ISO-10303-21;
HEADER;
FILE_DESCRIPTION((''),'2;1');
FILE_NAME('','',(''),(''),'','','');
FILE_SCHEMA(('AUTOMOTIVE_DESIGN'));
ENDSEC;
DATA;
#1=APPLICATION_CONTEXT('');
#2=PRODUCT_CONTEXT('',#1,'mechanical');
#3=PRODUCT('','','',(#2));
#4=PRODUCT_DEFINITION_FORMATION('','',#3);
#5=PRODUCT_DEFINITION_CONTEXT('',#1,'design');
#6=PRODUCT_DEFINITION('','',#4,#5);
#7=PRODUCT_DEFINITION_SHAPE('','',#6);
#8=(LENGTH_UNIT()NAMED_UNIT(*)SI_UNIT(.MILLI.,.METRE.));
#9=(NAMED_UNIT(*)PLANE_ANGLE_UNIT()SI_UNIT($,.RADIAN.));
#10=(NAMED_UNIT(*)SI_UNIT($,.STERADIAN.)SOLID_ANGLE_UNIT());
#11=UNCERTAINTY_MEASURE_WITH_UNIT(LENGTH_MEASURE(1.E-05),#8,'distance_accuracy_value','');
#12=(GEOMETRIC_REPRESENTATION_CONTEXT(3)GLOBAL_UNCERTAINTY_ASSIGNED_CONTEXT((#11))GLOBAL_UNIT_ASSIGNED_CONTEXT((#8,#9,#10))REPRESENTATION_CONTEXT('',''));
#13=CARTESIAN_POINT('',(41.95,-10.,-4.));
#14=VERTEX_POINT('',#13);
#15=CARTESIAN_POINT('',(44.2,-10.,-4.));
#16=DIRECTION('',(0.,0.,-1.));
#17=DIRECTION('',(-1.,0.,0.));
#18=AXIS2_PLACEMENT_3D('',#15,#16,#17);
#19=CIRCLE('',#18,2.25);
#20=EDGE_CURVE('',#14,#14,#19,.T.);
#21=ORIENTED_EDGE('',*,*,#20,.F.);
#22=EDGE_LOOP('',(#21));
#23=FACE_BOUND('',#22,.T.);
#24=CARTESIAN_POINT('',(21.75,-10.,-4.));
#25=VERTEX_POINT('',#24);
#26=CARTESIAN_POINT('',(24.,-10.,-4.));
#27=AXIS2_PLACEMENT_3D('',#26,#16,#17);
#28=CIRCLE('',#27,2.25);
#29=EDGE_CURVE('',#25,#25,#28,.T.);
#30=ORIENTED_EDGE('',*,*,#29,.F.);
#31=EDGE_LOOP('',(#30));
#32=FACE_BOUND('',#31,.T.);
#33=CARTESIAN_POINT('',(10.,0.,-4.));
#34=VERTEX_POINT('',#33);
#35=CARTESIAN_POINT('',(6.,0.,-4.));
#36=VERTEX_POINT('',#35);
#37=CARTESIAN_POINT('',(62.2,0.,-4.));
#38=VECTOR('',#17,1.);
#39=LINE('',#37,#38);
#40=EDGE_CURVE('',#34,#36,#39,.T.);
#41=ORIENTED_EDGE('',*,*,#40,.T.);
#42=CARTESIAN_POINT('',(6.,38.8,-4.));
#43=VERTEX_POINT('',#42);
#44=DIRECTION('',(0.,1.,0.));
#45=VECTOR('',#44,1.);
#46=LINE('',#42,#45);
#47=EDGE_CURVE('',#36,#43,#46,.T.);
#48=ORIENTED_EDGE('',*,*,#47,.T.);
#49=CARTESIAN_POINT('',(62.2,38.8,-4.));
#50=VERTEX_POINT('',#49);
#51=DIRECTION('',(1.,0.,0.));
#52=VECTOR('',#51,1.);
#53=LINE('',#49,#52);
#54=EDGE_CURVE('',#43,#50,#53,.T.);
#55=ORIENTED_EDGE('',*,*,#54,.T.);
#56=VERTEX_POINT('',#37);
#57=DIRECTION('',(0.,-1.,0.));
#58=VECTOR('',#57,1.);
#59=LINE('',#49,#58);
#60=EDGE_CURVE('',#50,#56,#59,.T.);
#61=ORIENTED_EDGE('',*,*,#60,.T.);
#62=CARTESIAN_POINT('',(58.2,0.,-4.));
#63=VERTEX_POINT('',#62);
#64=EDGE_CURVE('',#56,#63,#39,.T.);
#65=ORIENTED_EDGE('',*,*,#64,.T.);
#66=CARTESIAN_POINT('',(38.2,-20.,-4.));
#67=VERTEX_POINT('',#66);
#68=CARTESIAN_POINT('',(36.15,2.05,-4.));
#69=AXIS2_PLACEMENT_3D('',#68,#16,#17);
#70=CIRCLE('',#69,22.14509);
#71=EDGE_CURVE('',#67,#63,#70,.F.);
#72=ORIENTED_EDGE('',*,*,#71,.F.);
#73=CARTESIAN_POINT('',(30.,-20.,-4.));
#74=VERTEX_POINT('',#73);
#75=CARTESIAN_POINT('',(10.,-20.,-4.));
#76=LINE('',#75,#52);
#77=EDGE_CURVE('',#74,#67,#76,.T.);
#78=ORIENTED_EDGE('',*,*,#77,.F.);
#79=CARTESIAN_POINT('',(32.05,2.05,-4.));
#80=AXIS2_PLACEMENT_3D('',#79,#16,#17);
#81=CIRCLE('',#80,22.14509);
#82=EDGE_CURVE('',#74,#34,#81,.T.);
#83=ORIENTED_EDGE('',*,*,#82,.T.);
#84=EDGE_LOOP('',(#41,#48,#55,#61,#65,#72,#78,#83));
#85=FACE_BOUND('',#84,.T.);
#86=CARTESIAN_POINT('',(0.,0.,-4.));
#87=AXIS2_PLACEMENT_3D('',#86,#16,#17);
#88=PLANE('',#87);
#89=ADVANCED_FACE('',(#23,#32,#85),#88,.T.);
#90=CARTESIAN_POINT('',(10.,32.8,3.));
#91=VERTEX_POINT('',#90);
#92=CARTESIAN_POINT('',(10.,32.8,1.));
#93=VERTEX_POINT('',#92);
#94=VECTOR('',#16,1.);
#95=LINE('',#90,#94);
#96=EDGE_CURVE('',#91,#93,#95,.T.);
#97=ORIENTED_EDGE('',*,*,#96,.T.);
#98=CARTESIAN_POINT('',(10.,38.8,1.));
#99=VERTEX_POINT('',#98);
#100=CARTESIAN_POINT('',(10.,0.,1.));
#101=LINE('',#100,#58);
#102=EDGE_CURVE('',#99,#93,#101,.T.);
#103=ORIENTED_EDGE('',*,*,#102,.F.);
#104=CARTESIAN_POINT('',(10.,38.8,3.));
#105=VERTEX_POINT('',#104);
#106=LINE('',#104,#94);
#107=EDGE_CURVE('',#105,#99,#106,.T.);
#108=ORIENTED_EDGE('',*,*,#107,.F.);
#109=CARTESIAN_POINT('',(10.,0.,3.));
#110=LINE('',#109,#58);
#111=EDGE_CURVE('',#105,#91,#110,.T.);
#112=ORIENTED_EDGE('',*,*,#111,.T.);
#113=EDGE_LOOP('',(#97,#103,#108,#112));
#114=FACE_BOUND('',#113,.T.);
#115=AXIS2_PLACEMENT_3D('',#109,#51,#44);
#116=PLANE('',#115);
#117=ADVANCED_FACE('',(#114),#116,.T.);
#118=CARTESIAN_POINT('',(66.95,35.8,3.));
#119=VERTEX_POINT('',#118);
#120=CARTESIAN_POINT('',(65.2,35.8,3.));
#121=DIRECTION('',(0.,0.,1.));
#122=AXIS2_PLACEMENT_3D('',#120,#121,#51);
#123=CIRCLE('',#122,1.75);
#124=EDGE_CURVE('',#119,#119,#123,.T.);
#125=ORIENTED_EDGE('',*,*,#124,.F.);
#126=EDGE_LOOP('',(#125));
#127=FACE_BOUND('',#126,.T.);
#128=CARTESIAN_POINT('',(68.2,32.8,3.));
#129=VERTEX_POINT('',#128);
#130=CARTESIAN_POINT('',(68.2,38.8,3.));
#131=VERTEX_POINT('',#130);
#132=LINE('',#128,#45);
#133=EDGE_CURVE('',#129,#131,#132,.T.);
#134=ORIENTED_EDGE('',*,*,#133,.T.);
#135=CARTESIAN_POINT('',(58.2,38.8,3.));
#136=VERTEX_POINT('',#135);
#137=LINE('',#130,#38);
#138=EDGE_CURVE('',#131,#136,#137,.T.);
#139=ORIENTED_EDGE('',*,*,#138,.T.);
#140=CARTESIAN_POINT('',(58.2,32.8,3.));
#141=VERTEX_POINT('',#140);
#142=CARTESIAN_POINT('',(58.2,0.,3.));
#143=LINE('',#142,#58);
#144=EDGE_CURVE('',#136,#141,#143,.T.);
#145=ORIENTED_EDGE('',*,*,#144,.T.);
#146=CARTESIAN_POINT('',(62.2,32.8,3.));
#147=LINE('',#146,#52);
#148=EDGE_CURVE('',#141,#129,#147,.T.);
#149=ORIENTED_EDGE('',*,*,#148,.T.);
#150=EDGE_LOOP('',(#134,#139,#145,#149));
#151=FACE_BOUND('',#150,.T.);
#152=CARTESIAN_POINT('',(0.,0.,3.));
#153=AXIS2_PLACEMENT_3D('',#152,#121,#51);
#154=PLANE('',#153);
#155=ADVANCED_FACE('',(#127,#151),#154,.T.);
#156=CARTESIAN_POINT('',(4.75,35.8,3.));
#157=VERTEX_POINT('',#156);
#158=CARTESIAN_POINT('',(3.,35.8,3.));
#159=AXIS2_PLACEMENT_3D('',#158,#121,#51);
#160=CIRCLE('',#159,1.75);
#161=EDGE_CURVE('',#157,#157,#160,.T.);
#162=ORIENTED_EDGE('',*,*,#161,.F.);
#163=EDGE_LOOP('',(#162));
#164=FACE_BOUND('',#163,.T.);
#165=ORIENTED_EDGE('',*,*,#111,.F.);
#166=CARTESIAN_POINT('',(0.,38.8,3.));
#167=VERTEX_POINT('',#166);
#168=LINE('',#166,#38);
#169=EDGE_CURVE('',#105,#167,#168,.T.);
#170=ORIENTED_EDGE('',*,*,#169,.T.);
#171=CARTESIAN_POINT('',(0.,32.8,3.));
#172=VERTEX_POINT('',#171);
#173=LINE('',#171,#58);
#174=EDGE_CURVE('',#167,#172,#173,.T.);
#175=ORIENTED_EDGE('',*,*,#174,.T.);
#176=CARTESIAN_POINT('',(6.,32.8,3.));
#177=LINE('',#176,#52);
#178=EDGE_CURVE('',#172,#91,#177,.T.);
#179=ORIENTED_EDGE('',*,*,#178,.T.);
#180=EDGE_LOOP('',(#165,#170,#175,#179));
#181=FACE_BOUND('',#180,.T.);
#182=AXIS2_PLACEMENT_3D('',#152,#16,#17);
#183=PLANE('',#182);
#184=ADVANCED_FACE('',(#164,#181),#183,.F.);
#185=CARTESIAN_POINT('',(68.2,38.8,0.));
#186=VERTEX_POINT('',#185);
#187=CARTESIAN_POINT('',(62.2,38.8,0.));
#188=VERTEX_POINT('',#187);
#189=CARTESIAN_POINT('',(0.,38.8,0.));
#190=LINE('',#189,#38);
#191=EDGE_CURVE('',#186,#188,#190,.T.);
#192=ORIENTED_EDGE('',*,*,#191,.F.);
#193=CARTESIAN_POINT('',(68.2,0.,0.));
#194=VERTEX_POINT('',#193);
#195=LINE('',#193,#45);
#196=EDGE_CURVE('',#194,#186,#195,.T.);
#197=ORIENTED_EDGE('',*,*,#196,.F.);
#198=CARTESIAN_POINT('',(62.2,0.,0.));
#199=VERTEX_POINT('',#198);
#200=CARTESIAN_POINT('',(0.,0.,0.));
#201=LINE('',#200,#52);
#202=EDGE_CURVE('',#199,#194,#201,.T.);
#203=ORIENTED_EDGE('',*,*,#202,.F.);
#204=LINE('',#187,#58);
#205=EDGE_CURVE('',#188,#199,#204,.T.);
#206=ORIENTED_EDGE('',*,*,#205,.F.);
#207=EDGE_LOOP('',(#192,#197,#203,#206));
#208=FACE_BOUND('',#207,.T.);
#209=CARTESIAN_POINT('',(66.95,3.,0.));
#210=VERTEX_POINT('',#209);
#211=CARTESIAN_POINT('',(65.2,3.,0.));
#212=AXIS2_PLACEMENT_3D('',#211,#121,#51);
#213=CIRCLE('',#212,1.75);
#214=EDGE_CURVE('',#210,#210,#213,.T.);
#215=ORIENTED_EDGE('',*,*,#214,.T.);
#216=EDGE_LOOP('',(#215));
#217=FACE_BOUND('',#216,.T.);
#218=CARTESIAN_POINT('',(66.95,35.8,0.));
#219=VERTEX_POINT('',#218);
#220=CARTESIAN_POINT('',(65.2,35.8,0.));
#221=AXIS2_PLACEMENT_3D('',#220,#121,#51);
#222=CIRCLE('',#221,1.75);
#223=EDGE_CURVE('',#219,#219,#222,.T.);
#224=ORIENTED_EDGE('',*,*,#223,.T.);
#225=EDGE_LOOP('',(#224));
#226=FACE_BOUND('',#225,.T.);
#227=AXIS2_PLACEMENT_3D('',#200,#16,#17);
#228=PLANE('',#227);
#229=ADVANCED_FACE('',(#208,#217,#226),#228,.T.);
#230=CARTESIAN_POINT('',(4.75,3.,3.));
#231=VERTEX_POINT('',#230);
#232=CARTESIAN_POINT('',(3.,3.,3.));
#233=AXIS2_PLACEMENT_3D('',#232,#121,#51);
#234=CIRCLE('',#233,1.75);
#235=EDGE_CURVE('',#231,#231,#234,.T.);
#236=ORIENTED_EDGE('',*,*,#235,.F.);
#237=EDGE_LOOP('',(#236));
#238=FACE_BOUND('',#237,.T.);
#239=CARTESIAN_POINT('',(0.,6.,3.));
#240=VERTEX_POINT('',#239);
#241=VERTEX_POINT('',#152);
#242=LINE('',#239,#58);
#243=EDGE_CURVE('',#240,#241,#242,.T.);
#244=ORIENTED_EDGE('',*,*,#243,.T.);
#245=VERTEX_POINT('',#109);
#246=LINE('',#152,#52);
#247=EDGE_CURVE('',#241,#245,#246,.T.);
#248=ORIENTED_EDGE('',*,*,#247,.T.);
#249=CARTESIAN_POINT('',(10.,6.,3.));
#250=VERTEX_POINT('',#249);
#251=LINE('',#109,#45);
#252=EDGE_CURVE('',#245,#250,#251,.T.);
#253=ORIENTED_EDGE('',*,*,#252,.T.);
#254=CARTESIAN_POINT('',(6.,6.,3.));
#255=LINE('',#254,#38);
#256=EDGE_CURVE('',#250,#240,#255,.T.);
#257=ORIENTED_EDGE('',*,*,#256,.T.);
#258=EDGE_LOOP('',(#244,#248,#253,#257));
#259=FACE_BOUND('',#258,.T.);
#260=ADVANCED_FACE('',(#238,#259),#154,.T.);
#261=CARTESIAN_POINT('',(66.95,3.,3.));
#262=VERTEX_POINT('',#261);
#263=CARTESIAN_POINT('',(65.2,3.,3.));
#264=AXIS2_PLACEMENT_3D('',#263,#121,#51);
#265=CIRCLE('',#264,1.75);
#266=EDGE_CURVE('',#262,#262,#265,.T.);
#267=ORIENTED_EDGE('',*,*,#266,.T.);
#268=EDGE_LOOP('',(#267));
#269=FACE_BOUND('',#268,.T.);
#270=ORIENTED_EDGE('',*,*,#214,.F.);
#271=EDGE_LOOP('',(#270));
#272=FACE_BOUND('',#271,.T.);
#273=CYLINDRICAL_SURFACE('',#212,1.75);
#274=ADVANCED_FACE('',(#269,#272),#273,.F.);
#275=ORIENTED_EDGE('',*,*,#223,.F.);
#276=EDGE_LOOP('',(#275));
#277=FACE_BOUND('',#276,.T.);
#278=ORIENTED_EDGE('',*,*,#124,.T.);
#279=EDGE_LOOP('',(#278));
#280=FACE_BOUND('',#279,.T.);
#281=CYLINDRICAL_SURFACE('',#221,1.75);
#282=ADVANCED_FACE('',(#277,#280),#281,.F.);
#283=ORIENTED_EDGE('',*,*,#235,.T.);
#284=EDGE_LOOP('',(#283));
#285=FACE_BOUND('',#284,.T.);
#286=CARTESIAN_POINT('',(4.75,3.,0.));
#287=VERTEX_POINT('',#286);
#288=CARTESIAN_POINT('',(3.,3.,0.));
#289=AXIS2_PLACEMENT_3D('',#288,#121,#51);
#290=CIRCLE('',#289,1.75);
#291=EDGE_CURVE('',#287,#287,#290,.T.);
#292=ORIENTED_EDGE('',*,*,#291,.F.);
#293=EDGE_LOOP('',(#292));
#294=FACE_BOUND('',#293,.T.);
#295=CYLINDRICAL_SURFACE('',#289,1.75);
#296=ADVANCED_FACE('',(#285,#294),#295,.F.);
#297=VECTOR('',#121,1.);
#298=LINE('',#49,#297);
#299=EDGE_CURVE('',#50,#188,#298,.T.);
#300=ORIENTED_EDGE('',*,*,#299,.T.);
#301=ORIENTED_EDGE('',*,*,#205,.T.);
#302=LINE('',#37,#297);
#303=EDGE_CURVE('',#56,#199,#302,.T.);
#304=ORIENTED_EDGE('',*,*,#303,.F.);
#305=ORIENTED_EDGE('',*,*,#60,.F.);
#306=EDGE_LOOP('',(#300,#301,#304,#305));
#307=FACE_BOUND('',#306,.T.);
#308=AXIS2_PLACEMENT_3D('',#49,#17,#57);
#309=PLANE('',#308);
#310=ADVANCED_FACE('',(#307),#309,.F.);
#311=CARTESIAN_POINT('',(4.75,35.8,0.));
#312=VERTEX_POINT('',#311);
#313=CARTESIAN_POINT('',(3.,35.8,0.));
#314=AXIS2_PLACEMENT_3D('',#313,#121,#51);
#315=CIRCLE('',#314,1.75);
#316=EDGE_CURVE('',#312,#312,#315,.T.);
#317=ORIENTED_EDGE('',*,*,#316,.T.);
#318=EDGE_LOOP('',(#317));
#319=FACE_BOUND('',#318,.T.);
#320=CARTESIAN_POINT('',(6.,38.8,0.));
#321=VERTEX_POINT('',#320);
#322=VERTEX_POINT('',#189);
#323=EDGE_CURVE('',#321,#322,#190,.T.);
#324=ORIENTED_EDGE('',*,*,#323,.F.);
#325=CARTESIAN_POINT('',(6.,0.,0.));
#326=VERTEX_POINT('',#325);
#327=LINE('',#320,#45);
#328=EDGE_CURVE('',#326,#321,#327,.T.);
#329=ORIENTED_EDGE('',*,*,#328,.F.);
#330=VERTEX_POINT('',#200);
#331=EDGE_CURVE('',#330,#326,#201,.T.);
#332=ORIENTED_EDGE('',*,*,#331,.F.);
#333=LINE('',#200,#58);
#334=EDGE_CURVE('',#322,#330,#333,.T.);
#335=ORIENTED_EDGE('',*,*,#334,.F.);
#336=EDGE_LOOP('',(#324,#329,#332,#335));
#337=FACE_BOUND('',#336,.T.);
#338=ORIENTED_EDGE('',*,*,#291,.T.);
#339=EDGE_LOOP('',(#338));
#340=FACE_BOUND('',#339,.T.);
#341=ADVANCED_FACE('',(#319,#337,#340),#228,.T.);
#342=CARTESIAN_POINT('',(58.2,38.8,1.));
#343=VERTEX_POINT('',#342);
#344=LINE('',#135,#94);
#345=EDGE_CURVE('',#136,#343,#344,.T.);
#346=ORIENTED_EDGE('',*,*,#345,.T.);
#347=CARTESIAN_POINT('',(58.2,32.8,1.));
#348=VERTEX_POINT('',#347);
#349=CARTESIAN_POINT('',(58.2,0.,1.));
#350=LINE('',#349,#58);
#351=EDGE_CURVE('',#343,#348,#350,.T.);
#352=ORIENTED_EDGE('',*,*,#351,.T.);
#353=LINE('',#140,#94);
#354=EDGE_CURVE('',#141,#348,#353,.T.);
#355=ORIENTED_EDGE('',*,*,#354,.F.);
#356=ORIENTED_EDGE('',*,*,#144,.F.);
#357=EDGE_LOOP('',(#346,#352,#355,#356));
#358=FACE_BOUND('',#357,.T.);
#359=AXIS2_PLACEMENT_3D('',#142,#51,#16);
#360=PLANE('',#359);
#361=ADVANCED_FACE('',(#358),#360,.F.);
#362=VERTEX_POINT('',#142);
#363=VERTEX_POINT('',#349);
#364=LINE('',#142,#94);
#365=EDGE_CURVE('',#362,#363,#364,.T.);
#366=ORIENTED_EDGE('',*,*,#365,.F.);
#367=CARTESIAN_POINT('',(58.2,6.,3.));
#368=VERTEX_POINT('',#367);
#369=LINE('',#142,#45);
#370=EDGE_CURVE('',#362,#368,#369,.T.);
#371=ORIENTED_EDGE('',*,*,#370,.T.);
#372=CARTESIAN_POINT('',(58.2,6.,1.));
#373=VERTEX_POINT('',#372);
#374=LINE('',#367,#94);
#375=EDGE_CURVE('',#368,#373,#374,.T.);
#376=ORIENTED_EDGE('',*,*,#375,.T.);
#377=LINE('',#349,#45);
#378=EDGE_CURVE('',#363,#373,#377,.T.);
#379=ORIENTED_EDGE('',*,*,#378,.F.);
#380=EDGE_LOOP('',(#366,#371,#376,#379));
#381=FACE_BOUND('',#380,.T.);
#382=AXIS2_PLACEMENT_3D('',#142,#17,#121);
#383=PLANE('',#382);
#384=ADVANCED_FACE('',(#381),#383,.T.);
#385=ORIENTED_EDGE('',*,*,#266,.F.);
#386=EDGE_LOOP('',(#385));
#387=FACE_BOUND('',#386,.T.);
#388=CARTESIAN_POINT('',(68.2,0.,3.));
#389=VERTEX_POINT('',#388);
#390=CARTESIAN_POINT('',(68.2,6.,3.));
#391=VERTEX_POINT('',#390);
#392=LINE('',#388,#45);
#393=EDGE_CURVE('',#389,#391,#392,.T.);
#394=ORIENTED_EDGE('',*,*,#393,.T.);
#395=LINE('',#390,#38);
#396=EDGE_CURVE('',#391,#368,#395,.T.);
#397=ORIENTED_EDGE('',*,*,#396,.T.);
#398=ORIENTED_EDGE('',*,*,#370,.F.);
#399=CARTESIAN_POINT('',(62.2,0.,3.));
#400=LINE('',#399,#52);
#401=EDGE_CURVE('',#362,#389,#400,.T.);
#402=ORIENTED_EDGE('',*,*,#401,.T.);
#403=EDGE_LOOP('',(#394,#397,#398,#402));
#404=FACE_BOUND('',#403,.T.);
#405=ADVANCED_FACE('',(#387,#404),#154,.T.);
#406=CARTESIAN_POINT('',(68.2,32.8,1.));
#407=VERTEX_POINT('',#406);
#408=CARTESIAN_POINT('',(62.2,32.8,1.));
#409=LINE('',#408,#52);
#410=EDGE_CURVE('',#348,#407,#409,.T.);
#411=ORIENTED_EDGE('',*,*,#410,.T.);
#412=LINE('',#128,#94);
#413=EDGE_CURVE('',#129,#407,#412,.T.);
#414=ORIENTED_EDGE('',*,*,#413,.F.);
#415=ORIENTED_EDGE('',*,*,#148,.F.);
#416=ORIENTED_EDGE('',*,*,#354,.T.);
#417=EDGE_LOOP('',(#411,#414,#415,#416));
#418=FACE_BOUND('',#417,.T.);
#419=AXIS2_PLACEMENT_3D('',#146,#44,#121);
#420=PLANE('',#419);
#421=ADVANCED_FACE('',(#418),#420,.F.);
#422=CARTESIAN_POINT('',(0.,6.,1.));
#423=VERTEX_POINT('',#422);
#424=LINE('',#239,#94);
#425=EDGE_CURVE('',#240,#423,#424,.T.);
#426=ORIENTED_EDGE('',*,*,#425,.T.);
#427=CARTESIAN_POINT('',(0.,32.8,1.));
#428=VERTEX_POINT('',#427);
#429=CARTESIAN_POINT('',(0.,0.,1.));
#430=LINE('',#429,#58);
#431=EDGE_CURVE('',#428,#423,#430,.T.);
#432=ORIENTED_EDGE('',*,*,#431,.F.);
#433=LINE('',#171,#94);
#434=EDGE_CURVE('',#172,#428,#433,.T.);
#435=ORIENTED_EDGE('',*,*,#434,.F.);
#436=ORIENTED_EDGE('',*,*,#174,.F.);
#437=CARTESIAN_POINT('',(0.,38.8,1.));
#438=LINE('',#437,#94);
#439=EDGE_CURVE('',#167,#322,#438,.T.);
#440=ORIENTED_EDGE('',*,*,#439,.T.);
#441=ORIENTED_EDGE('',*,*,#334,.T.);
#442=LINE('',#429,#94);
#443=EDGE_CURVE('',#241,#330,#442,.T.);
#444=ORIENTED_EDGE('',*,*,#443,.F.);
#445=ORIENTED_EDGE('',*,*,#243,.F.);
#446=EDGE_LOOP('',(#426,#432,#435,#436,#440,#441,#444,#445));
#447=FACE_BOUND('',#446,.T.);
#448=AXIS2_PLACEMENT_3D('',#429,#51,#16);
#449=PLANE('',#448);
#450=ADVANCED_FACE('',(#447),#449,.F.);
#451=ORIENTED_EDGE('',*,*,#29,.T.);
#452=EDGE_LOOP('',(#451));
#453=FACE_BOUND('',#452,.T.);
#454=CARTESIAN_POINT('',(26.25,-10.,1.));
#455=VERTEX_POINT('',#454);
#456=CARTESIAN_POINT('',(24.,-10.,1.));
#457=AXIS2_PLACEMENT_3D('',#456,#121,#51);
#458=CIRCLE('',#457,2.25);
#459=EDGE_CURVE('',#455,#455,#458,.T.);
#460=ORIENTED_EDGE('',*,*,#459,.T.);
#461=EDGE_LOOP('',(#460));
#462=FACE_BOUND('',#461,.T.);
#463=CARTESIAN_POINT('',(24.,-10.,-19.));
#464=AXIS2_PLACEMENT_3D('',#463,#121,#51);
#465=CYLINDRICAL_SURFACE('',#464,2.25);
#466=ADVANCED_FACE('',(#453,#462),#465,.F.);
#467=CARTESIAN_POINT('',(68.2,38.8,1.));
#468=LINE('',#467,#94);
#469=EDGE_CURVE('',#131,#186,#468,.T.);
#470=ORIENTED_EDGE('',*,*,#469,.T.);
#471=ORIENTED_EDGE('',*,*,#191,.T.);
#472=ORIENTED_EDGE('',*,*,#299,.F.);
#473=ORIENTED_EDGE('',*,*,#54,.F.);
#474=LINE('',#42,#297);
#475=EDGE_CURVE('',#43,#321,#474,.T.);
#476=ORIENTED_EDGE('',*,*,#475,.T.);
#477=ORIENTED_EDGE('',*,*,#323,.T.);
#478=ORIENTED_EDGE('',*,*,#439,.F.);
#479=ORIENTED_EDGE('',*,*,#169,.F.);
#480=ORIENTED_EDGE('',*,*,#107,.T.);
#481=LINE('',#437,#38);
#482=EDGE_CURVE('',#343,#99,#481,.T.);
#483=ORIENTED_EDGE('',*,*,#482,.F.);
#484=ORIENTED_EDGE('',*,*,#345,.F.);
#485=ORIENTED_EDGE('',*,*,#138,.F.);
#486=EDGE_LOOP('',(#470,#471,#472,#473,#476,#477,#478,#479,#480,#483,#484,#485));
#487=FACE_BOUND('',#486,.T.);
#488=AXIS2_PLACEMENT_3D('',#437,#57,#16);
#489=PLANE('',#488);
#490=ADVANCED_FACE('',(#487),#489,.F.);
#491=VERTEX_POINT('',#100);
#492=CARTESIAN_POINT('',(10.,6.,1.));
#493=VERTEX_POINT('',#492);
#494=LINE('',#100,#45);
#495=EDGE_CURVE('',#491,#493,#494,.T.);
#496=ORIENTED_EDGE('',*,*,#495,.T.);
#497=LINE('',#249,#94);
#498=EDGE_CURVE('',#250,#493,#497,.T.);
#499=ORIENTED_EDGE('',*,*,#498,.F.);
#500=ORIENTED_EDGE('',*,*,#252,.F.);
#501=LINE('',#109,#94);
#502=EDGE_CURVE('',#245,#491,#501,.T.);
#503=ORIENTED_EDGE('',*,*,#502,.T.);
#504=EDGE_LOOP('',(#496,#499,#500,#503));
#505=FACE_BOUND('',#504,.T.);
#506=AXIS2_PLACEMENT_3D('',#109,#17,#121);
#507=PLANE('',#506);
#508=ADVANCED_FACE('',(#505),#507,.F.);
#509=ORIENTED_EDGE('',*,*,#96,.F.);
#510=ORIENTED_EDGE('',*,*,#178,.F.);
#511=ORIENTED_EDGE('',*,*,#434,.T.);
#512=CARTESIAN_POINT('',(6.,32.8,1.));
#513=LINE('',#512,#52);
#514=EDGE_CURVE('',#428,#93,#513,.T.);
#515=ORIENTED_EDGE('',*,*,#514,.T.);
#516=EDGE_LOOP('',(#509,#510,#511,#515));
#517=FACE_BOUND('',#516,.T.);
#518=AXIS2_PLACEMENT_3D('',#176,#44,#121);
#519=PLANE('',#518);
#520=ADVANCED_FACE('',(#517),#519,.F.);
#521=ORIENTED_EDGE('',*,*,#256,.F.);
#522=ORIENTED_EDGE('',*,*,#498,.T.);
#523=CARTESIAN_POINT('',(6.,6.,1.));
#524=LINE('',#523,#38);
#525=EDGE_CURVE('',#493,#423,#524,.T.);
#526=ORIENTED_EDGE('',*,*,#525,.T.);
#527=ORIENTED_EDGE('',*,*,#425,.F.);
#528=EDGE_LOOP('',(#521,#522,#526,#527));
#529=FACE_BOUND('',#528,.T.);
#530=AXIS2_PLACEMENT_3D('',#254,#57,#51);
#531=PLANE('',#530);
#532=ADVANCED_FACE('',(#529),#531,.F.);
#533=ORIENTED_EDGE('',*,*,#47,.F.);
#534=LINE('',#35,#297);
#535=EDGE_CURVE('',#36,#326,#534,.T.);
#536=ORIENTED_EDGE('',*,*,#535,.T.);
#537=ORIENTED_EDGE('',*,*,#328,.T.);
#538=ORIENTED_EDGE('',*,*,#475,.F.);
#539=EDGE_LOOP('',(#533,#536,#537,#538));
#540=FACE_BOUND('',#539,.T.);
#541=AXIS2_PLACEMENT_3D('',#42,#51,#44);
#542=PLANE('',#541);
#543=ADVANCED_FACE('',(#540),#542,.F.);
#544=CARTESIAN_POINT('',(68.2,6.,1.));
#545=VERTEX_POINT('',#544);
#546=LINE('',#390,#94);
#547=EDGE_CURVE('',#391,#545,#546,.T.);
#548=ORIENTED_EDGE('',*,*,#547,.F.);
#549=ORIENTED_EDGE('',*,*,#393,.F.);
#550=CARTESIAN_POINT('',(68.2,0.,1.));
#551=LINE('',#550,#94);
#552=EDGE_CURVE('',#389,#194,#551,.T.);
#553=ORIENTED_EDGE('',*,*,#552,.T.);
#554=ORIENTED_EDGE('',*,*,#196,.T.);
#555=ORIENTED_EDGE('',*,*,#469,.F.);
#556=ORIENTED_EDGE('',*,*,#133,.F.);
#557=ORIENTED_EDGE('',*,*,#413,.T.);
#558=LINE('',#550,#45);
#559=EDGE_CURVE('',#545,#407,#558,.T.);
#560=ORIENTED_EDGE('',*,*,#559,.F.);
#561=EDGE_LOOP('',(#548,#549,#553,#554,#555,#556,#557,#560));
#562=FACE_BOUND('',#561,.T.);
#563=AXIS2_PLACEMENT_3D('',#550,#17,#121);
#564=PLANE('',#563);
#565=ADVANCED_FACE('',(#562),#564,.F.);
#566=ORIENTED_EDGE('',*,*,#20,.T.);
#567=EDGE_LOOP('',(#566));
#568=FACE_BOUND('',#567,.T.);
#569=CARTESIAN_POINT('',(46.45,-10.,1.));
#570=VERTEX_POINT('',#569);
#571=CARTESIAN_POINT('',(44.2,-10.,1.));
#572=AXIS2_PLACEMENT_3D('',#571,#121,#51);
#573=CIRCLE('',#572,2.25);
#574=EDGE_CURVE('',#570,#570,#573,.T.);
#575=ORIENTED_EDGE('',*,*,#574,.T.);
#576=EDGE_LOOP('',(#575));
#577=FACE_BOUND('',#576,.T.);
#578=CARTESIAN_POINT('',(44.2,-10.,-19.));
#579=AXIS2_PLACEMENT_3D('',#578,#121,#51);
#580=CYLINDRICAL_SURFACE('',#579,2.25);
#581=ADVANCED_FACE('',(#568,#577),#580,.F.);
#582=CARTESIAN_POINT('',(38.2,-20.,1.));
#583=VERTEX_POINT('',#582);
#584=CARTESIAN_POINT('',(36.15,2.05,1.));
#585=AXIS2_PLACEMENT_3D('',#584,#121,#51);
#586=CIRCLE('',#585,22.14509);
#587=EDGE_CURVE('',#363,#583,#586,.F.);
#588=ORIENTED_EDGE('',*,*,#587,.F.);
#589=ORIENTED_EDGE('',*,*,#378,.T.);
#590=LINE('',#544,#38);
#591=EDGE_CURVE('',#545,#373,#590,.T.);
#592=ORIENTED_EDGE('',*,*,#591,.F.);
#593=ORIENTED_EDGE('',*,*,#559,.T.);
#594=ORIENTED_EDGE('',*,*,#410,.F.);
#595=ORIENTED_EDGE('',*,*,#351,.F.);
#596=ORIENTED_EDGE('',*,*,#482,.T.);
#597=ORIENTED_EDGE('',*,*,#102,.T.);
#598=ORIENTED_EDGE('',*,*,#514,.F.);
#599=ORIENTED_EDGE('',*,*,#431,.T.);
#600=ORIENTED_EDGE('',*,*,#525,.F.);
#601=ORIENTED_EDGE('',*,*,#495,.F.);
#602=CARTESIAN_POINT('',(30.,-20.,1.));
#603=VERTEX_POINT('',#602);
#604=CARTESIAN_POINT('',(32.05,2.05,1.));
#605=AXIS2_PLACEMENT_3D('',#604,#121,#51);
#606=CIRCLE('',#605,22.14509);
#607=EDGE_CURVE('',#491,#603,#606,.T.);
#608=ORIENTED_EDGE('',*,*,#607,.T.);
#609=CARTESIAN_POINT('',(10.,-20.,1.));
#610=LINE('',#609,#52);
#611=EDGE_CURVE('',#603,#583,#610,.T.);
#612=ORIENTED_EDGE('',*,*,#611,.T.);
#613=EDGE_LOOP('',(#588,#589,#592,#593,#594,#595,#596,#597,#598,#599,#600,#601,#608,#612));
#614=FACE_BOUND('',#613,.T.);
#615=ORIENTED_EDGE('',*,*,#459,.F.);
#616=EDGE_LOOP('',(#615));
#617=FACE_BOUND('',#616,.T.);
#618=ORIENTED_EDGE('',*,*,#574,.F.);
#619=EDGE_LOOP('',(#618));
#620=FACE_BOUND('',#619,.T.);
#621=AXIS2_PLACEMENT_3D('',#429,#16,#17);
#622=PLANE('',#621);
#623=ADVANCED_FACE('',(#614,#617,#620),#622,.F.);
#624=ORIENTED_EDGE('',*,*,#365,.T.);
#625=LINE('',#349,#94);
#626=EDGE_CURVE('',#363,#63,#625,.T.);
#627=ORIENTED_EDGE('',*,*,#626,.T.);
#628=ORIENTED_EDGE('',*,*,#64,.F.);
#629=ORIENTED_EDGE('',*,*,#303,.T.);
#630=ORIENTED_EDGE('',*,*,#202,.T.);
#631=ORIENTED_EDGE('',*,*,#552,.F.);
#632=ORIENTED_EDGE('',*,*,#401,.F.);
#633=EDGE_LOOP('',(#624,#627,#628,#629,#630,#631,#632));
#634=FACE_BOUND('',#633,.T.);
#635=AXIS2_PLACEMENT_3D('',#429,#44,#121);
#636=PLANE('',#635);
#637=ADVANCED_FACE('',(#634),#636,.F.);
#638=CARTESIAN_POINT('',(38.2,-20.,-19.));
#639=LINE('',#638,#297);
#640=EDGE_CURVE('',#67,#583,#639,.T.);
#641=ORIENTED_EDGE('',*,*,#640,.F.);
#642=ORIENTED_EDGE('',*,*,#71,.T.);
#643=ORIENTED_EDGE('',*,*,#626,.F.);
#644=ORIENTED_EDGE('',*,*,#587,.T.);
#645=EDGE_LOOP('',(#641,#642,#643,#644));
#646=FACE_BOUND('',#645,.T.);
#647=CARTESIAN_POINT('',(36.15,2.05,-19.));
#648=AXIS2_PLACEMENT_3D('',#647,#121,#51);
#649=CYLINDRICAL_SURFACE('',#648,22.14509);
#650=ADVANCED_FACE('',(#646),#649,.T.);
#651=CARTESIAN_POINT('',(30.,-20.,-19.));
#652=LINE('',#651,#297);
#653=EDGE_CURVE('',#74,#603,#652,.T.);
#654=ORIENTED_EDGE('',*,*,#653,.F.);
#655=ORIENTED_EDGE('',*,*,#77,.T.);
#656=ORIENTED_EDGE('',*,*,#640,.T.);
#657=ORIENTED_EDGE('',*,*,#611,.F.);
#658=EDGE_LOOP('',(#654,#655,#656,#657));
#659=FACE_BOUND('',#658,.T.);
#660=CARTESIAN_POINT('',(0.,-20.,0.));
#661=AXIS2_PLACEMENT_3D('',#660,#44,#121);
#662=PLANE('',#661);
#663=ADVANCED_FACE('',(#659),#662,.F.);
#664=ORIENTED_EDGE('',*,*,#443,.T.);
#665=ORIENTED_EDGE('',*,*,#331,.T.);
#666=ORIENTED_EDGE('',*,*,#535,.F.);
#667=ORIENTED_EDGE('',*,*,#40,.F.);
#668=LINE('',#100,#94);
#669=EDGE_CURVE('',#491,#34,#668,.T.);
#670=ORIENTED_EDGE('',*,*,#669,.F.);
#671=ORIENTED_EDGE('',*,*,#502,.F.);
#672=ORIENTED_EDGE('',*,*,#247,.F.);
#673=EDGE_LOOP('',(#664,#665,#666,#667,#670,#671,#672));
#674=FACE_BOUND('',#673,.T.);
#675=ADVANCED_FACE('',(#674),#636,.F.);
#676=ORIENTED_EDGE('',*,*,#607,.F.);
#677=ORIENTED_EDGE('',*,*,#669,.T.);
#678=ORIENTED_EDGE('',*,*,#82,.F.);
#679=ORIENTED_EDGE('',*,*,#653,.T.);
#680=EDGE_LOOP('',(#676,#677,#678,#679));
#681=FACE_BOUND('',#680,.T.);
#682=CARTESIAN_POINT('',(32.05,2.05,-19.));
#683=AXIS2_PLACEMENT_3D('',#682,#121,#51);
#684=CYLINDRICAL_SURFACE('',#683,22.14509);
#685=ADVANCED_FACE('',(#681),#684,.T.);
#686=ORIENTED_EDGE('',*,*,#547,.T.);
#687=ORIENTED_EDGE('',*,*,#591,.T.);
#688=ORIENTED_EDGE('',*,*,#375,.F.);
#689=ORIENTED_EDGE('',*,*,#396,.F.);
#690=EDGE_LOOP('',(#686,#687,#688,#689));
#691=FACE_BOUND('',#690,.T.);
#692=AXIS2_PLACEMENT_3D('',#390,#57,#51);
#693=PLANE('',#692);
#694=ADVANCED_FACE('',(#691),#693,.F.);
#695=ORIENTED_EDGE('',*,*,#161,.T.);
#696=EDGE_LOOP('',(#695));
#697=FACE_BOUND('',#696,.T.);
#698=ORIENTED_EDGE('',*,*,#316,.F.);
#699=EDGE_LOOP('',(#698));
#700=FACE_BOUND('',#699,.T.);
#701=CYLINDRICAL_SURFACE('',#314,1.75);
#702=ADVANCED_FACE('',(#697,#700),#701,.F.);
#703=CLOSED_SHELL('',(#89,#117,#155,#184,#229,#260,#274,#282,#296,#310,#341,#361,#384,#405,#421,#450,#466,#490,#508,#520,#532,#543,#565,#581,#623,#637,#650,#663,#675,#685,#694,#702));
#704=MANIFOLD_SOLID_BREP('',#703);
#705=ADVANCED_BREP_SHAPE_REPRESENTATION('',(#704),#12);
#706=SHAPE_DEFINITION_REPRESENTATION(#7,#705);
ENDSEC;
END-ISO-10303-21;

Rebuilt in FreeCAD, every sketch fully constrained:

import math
import FreeCAD as App
import Part
import Sketcher

V = App.Vector
Q = App.Units.Quantity

doc = App.newDocument("Part")
params = doc.addObject("Spreadsheet::Sheet", "Params")
for row, (alias, value) in enumerate([
    ("sketch1_width", "68.2 mm"),
    ("sketch1_height", "38.8 mm"),
    ("pad1_length", "1 mm"),
    ("sketch2_width", "6 mm"),
    ("pad2_length", "2 mm"),
    ("sketch3_width", "6 mm"),
    ("pad3_length", "2 mm"),
    ("sketch4_diameter", "3.5 mm"),
    ("sketch5_diameter", "3.5 mm"),
    ("sketch5_width", "10 mm"),
    ("sketch5_height", "6 mm"),
    ("pad4_length", "3 mm"),
    ("sketch6_width", "56.2 mm"),
    ("sketch6_height", "38.8 mm"),
    ("pad5_length", "4 mm"),
    ("sketch7_height", "5 mm"),
    ("sketch7_width", "48.2 mm"),
    ("pad6_length", "20 mm"),
    ("sketch8_diameter", "4.5 mm"),
    ("sketch8_width", "20 mm"),
    ("pocket2_length", "20 mm"),
], start=1):
    params.set(f"A{row}", alias)
    params.set(f"B{row}", "=" + value)
    params.setAlias(f"B{row}", alias)

body = doc.addObject("PartDesign::Body", "Body")

# Sketch on XY plane
sketch1 = doc.addObject("Sketcher::SketchObject", "Sketch")
body.addObject(sketch1)
sketch1.AttachmentSupport = (doc.XY_Plane, [""])
sketch1.MapMode = "FlatFace"
sketch1.addGeometry(Part.LineSegment(V(0, 38.8, 0), V(0, 0, 0)), False)
sketch1.addGeometry(Part.LineSegment(V(0, 0, 0), V(68.2, 0, 0)), False)
sketch1.addGeometry(Part.LineSegment(V(68.2, 0, 0), V(68.2, 38.8, 0)), False)
sketch1.addGeometry(Part.LineSegment(V(68.2, 38.8, 0), V(0, 38.8, 0)), False)
sketch1.addConstraint(Sketcher.Constraint("Coincident", 0, 2, 1, 1))
sketch1.addConstraint(Sketcher.Constraint("Coincident", 1, 2, 2, 1))
sketch1.addConstraint(Sketcher.Constraint("Coincident", 2, 2, 3, 1))
sketch1.addConstraint(Sketcher.Constraint("Coincident", 3, 2, 0, 1))
sketch1.addConstraint(Sketcher.Constraint("Vertical", 0))
sketch1.addConstraint(Sketcher.Constraint("Horizontal", 1))
sketch1.addConstraint(Sketcher.Constraint("Vertical", 2))
sketch1.addConstraint(Sketcher.Constraint("Horizontal", 3))
sketch1.addConstraint(Sketcher.Constraint("Coincident", 0, 2, -1, 1))
sketch1.addConstraint(Sketcher.Constraint("DistanceX", 1, 1, 1, 2, Q("68.2 mm")))
sketch1.addConstraint(Sketcher.Constraint("DistanceY", 0, 2, 0, 1, Q("38.8 mm")))
sketch1.setExpression("Constraints[9]", "Params.sketch1_width")
sketch1.setExpression("Constraints[10]", "Params.sketch1_height")
pad1 = doc.addObject("PartDesign::Pad", "Pad")
body.addObject(pad1)
pad1.Profile = sketch1
pad1.setExpression("Length", "Params.pad1_length")

# Sketch on XY plane
sketch2 = doc.addObject("Sketcher::SketchObject", "Sketch001")
body.addObject(sketch2)
sketch2.AttachmentSupport = (doc.XY_Plane, [""])
sketch2.MapMode = "FlatFace"
sketch2.AttachmentOffset = App.Placement(V(0, 0, 1), App.Rotation())
sketch2.addGeometry(Part.LineSegment(V(62.2, 38.8, 0), V(62.2, 32.8, 0)), False)
sketch2.addGeometry(Part.LineSegment(V(62.2, 32.8, 0), V(68.2, 32.8, 0)), False)
sketch2.addGeometry(Part.LineSegment(V(68.2, 32.8, 0), V(68.2, 38.8, 0)), False)
sketch2.addGeometry(Part.LineSegment(V(68.2, 38.8, 0), V(62.2, 38.8, 0)), False)
sketch2.addGeometry(Part.LineSegment(V(62.2, 6, 0), V(62.2, 0, 0)), False)
sketch2.addGeometry(Part.LineSegment(V(62.2, 0, 0), V(68.2, 0, 0)), False)
sketch2.addGeometry(Part.LineSegment(V(68.2, 0, 0), V(68.2, 6, 0)), False)
sketch2.addGeometry(Part.LineSegment(V(68.2, 6, 0), V(62.2, 6, 0)), False)
sketch2.addGeometry(Part.LineSegment(V(0, 6, 0), V(0, 0, 0)), False)
sketch2.addGeometry(Part.LineSegment(V(0, 0, 0), V(6, 0, 0)), False)
sketch2.addGeometry(Part.LineSegment(V(6, 0, 0), V(6, 6, 0)), False)
sketch2.addGeometry(Part.LineSegment(V(6, 6, 0), V(0, 6, 0)), False)
sketch2.addConstraint(Sketcher.Constraint("Coincident", 0, 2, 1, 1))
sketch2.addConstraint(Sketcher.Constraint("Coincident", 1, 2, 2, 1))
sketch2.addConstraint(Sketcher.Constraint("Coincident", 2, 2, 3, 1))
sketch2.addConstraint(Sketcher.Constraint("Coincident", 3, 2, 0, 1))
sketch2.addConstraint(Sketcher.Constraint("Coincident", 4, 2, 5, 1))
sketch2.addConstraint(Sketcher.Constraint("Coincident", 5, 2, 6, 1))
sketch2.addConstraint(Sketcher.Constraint("Coincident", 6, 2, 7, 1))
sketch2.addConstraint(Sketcher.Constraint("Coincident", 7, 2, 4, 1))
sketch2.addConstraint(Sketcher.Constraint("Coincident", 8, 2, 9, 1))
sketch2.addConstraint(Sketcher.Constraint("Coincident", 9, 2, 10, 1))
sketch2.addConstraint(Sketcher.Constraint("Coincident", 10, 2, 11, 1))
sketch2.addConstraint(Sketcher.Constraint("Coincident", 11, 2, 8, 1))
sketch2.addConstraint(Sketcher.Constraint("Vertical", 0))
sketch2.addConstraint(Sketcher.Constraint("Horizontal", 1))
sketch2.addConstraint(Sketcher.Constraint("Vertical", 2))
sketch2.addConstraint(Sketcher.Constraint("Horizontal", 3))
sketch2.addConstraint(Sketcher.Constraint("Vertical", 4))
sketch2.addConstraint(Sketcher.Constraint("Horizontal", 5))
sketch2.addConstraint(Sketcher.Constraint("Vertical", 6))
sketch2.addConstraint(Sketcher.Constraint("Horizontal", 7))
sketch2.addConstraint(Sketcher.Constraint("Vertical", 8))
sketch2.addConstraint(Sketcher.Constraint("Horizontal", 9))
sketch2.addConstraint(Sketcher.Constraint("Vertical", 10))
sketch2.addConstraint(Sketcher.Constraint("Horizontal", 11))
sketch2.addConstraint(Sketcher.Constraint("Coincident", 8, 2, -1, 1))
sketch2.addConstraint(Sketcher.Constraint("PointOnObject", 4, 2, -1))
sketch2.addConstraint(Sketcher.Constraint("Horizontal", 7, 2, 10, 2))
sketch2.addConstraint(Sketcher.Constraint("Vertical", 3, 2, 4, 2))
sketch2.addConstraint(Sketcher.Constraint("Vertical", 2, 2, 5, 2))
sketch2.addConstraint(Sketcher.Constraint("Equal", 7, 9))
sketch2.addConstraint(Sketcher.Constraint("Equal", 11, 0))
sketch2.addConstraint(Sketcher.Constraint("Equal", 2, 4))
sketch2.addConstraint(Sketcher.Constraint("DistanceX", 1, 1, 1, 2, Q("6 mm")))
sketch2.addConstraint(Sketcher.Constraint("DistanceX", -1, 1, 0, 2, Q("62.2 mm")))
sketch2.addConstraint(Sketcher.Constraint("DistanceY", -1, 1, 0, 2, Q("32.8 mm")))
sketch2.setExpression("Constraints[32]", "Params.sketch2_width")
pad2 = doc.addObject("PartDesign::Pad", "Pad001")
body.addObject(pad2)
pad2.Profile = sketch2
pad2.setExpression("Length", "Params.pad2_length")

# Sketch on XY plane
sketch3 = doc.addObject("Sketcher::SketchObject", "Sketch002")
body.addObject(sketch3)
sketch3.AttachmentSupport = (doc.XY_Plane, [""])
sketch3.MapMode = "FlatFace"
sketch3.AttachmentOffset = App.Placement(V(0, 0, 1), App.Rotation())
sketch3.addGeometry(Part.LineSegment(V(0, 38.8, 0), V(0, 32.8, 0)), False)
sketch3.addGeometry(Part.LineSegment(V(0, 32.8, 0), V(6, 32.8, 0)), False)
sketch3.addGeometry(Part.LineSegment(V(6, 32.8, 0), V(6, 38.8, 0)), False)
sketch3.addGeometry(Part.LineSegment(V(6, 38.8, 0), V(0, 38.8, 0)), False)
sketch3.addConstraint(Sketcher.Constraint("Coincident", 0, 2, 1, 1))
sketch3.addConstraint(Sketcher.Constraint("Coincident", 1, 2, 2, 1))
sketch3.addConstraint(Sketcher.Constraint("Coincident", 2, 2, 3, 1))
sketch3.addConstraint(Sketcher.Constraint("Coincident", 3, 2, 0, 1))
sketch3.addConstraint(Sketcher.Constraint("Vertical", 0))
sketch3.addConstraint(Sketcher.Constraint("Horizontal", 1))
sketch3.addConstraint(Sketcher.Constraint("Vertical", 2))
sketch3.addConstraint(Sketcher.Constraint("Horizontal", 3))
sketch3.addConstraint(Sketcher.Constraint("PointOnObject", 0, 2, -2))
sketch3.addConstraint(Sketcher.Constraint("Equal", 3, 0))
sketch3.addConstraint(Sketcher.Constraint("DistanceX", 1, 1, 1, 2, Q("6 mm")))
sketch3.addConstraint(Sketcher.Constraint("DistanceY", -1, 1, 0, 2, Q("32.8 mm")))
sketch3.setExpression("Constraints[10]", "Params.sketch3_width")
pad3 = doc.addObject("PartDesign::Pad", "Pad002")
body.addObject(pad3)
pad3.Profile = sketch3
pad3.setExpression("Length", "Params.pad3_length")

# Sketch on XY plane
sketch4 = doc.addObject("Sketcher::SketchObject", "Sketch003")
body.addObject(sketch4)
sketch4.AttachmentSupport = (doc.XY_Plane, [""])
sketch4.MapMode = "FlatFace"
sketch4.AttachmentOffset = App.Placement(V(0, 0, 1), App.Rotation())
sketch4.addGeometry(Part.Circle(V(3, 35.8, 0), V(0, 0, 1), 1.75), False)
sketch4.addGeometry(Part.Circle(V(3, 3, 0), V(0, 0, 1), 1.75), False)
sketch4.addGeometry(Part.Circle(V(65.2, 3, 0), V(0, 0, 1), 1.75), False)
sketch4.addGeometry(Part.Circle(V(65.2, 35.8, 0), V(0, 0, 1), 1.75), False)
sketch4.addConstraint(Sketcher.Constraint("Equal", 0, 1))
sketch4.addConstraint(Sketcher.Constraint("Equal", 1, 2))
sketch4.addConstraint(Sketcher.Constraint("Equal", 2, 3))
sketch4.addConstraint(Sketcher.Constraint("Horizontal", 1, 3, 2, 3))
sketch4.addConstraint(Sketcher.Constraint("Horizontal", 0, 3, 3, 3))
sketch4.addConstraint(Sketcher.Constraint("Vertical", 0, 3, 1, 3))
sketch4.addConstraint(Sketcher.Constraint("Vertical", 2, 3, 3, 3))
sketch4.addConstraint(Sketcher.Constraint("Diameter", 0, Q("3.5 mm")))
sketch4.addConstraint(Sketcher.Constraint("DistanceX", -1, 1, 0, 3, Q("3 mm")))
sketch4.addConstraint(Sketcher.Constraint("DistanceY", -1, 1, 1, 3, Q("3 mm")))
sketch4.addConstraint(Sketcher.Constraint("DistanceY", -1, 1, 0, 3, Q("35.8 mm")))
sketch4.addConstraint(Sketcher.Constraint("DistanceX", -1, 1, 2, 3, Q("65.2 mm")))
sketch4.setExpression("Constraints[7]", "Params.sketch4_diameter")
pocket1 = doc.addObject("PartDesign::Pocket", "Pocket")
body.addObject(pocket1)
pocket1.Profile = sketch4
pocket1.Type = "ThroughAll"
pocket1.Midplane = True

# Sketch on XY plane
sketch5 = doc.addObject("Sketcher::SketchObject", "Sketch004")
body.addObject(sketch5)
sketch5.AttachmentSupport = (doc.XY_Plane, [""])
sketch5.MapMode = "FlatFace"
sketch5.addGeometry(Part.LineSegment(V(68.2, 6, 0), V(68.2, 0, 0)), False)
sketch5.addGeometry(Part.LineSegment(V(68.2, 0, 0), V(58.2, 0, 0)), False)
sketch5.addGeometry(Part.LineSegment(V(58.2, 0, 0), V(58.2, 6, 0)), False)
sketch5.addGeometry(Part.LineSegment(V(58.2, 6, 0), V(68.2, 6, 0)), False)
sketch5.addGeometry(Part.Circle(V(65.2, 3, 0), V(0, 0, 1), 1.75), False)
sketch5.addGeometry(Part.LineSegment(V(68.2, 38.8, 0), V(68.2, 32.8, 0)), False)
sketch5.addGeometry(Part.LineSegment(V(68.2, 32.8, 0), V(58.2, 32.8, 0)), False)
sketch5.addGeometry(Part.LineSegment(V(58.2, 32.8, 0), V(58.2, 38.8, 0)), False)
sketch5.addGeometry(Part.LineSegment(V(58.2, 38.8, 0), V(68.2, 38.8, 0)), False)
sketch5.addGeometry(Part.Circle(V(65.2, 35.8, 0), V(0, 0, 1), 1.869219), False)
sketch5.addGeometry(Part.LineSegment(V(10, 6, 0), V(10, 0, 0)), False)
sketch5.addGeometry(Part.LineSegment(V(10, 0, 0), V(0, 0, 0)), False)
sketch5.addGeometry(Part.LineSegment(V(0, 0, 0), V(0, 6, 0)), False)
sketch5.addGeometry(Part.LineSegment(V(0, 6, 0), V(10, 6, 0)), False)
sketch5.addGeometry(Part.Circle(V(3, 3, 0), V(0, 0, 1), 1.75), False)
sketch5.addGeometry(Part.LineSegment(V(10, 38.8, 0), V(10, 32.8, 0)), False)
sketch5.addGeometry(Part.LineSegment(V(10, 32.8, 0), V(0, 32.8, 0)), False)
sketch5.addGeometry(Part.LineSegment(V(0, 32.8, 0), V(0, 38.8, 0)), False)
sketch5.addGeometry(Part.LineSegment(V(0, 38.8, 0), V(10, 38.8, 0)), False)
sketch5.addGeometry(Part.Circle(V(3, 35.8, 0), V(0, 0, 1), 1.75), False)
sketch5.addConstraint(Sketcher.Constraint("Coincident", 0, 2, 1, 1))
sketch5.addConstraint(Sketcher.Constraint("Coincident", 1, 2, 2, 1))
sketch5.addConstraint(Sketcher.Constraint("Coincident", 2, 2, 3, 1))
sketch5.addConstraint(Sketcher.Constraint("Coincident", 3, 2, 0, 1))
sketch5.addConstraint(Sketcher.Constraint("Coincident", 5, 2, 6, 1))
sketch5.addConstraint(Sketcher.Constraint("Coincident", 6, 2, 7, 1))
sketch5.addConstraint(Sketcher.Constraint("Coincident", 7, 2, 8, 1))
sketch5.addConstraint(Sketcher.Constraint("Coincident", 8, 2, 5, 1))
sketch5.addConstraint(Sketcher.Constraint("Coincident", 10, 2, 11, 1))
sketch5.addConstraint(Sketcher.Constraint("Coincident", 11, 2, 12, 1))
sketch5.addConstraint(Sketcher.Constraint("Coincident", 12, 2, 13, 1))
sketch5.addConstraint(Sketcher.Constraint("Coincident", 13, 2, 10, 1))
sketch5.addConstraint(Sketcher.Constraint("Coincident", 15, 2, 16, 1))
sketch5.addConstraint(Sketcher.Constraint("Coincident", 16, 2, 17, 1))
sketch5.addConstraint(Sketcher.Constraint("Coincident", 17, 2, 18, 1))
sketch5.addConstraint(Sketcher.Constraint("Coincident", 18, 2, 15, 1))
sketch5.addConstraint(Sketcher.Constraint("Vertical", 0))
sketch5.addConstraint(Sketcher.Constraint("Horizontal", 1))
sketch5.addConstraint(Sketcher.Constraint("Vertical", 2))
sketch5.addConstraint(Sketcher.Constraint("Horizontal", 3))
sketch5.addConstraint(Sketcher.Constraint("Vertical", 5))
sketch5.addConstraint(Sketcher.Constraint("Horizontal", 6))
sketch5.addConstraint(Sketcher.Constraint("Vertical", 7))
sketch5.addConstraint(Sketcher.Constraint("Horizontal", 8))
sketch5.addConstraint(Sketcher.Constraint("Vertical", 10))
sketch5.addConstraint(Sketcher.Constraint("Horizontal", 11))
sketch5.addConstraint(Sketcher.Constraint("Vertical", 12))
sketch5.addConstraint(Sketcher.Constraint("Horizontal", 13))
sketch5.addConstraint(Sketcher.Constraint("Vertical", 15))
sketch5.addConstraint(Sketcher.Constraint("Horizontal", 16))
sketch5.addConstraint(Sketcher.Constraint("Vertical", 17))
sketch5.addConstraint(Sketcher.Constraint("Horizontal", 18))
sketch5.addConstraint(Sketcher.Constraint("Coincident", 11, 2, -1, 1))
sketch5.addConstraint(Sketcher.Constraint("Equal", 4, 14))
sketch5.addConstraint(Sketcher.Constraint("Equal", 14, 19))
sketch5.addConstraint(Sketcher.Constraint("PointOnObject", 0, 2, -1))
sketch5.addConstraint(Sketcher.Constraint("PointOnObject", 16, 2, -2))
sketch5.addConstraint(Sketcher.Constraint("Horizontal", 4, 3, 14, 3))
sketch5.addConstraint(Sketcher.Constraint("Horizontal", 9, 3, 19, 3))
sketch5.addConstraint(Sketcher.Constraint("Horizontal", 3, 2, 12, 2))
sketch5.addConstraint(Sketcher.Constraint("Horizontal", 6, 2, 15, 2))
sketch5.addConstraint(Sketcher.Constraint("Horizontal", 8, 2, 17, 2))
sketch5.addConstraint(Sketcher.Constraint("Vertical", 4, 3, 9, 3))
sketch5.addConstraint(Sketcher.Constraint("Vertical", 14, 3, 19, 3))
sketch5.addConstraint(Sketcher.Constraint("Vertical", 3, 2, 5, 2))
sketch5.addConstraint(Sketcher.Constraint("Vertical", 2, 2, 6, 2))
sketch5.addConstraint(Sketcher.Constraint("Vertical", 13, 2, 15, 2))
sketch5.addConstraint(Sketcher.Constraint("Equal", 8, 11))
sketch5.addConstraint(Sketcher.Constraint("Equal", 2, 5))
sketch5.addConstraint(Sketcher.Constraint("Diameter", 4, Q("3.5 mm")))
sketch5.addConstraint(Sketcher.Constraint("DistanceX", 1, 2, 1, 1, Q("10 mm")))
sketch5.addConstraint(Sketcher.Constraint("DistanceY", 0, 2, 0, 1, Q("6 mm")))
sketch5.addConstraint(Sketcher.Constraint("DistanceY", -1, 1, 4, 3, Q("3 mm")))
sketch5.addConstraint(Sketcher.Constraint("DistanceX", -1, 1, 14, 3, Q("3 mm")))
sketch5.addConstraint(Sketcher.Constraint("DistanceX", 4, 3, 0, 2, Q("3 mm")))
sketch5.addConstraint(Sketcher.Constraint("DistanceY", 5, 2, 9, 3, Q("3 mm")))
sketch5.addConstraint(Sketcher.Constraint("DistanceX", -1, 1, 4, 3, Q("65.2 mm")))
sketch5.addConstraint(Sketcher.Constraint("DistanceY", -1, 1, 9, 3, Q("35.8 mm")))
sketch5.addConstraint(Sketcher.Constraint("Diameter", 9, Q("3.738438 mm")))
sketch5.setExpression("Constraints[49]", "Params.sketch5_diameter")
sketch5.setExpression("Constraints[50]", "Params.sketch5_width")
sketch5.setExpression("Constraints[51]", "Params.sketch5_height")
pad4 = doc.addObject("PartDesign::Pad", "Pad003")
body.addObject(pad4)
pad4.Profile = sketch5
pad4.setExpression("Length", "Params.pad4_length")

# Sketch on XY plane
sketch6 = doc.addObject("Sketcher::SketchObject", "Sketch005")
body.addObject(sketch6)
sketch6.AttachmentSupport = (doc.XY_Plane, [""])
sketch6.MapMode = "FlatFace"
sketch6.addGeometry(Part.LineSegment(V(62.2, 38.8, 0), V(62.2, 0, 0)), False)
sketch6.addGeometry(Part.LineSegment(V(62.2, 0, 0), V(6, 0, 0)), False)
sketch6.addGeometry(Part.LineSegment(V(6, 0, 0), V(6, 38.8, 0)), False)
sketch6.addGeometry(Part.LineSegment(V(6, 38.8, 0), V(62.2, 38.8, 0)), False)
sketch6.addConstraint(Sketcher.Constraint("Coincident", 0, 2, 1, 1))
sketch6.addConstraint(Sketcher.Constraint("Coincident", 1, 2, 2, 1))
sketch6.addConstraint(Sketcher.Constraint("Coincident", 2, 2, 3, 1))
sketch6.addConstraint(Sketcher.Constraint("Coincident", 3, 2, 0, 1))
sketch6.addConstraint(Sketcher.Constraint("Vertical", 0))
sketch6.addConstraint(Sketcher.Constraint("Horizontal", 1))
sketch6.addConstraint(Sketcher.Constraint("Vertical", 2))
sketch6.addConstraint(Sketcher.Constraint("Horizontal", 3))
sketch6.addConstraint(Sketcher.Constraint("PointOnObject", 0, 2, -1))
sketch6.addConstraint(Sketcher.Constraint("DistanceX", 1, 2, 1, 1, Q("56.2 mm")))
sketch6.addConstraint(Sketcher.Constraint("DistanceY", 0, 2, 0, 1, Q("38.8 mm")))
sketch6.addConstraint(Sketcher.Constraint("DistanceX", -1, 1, 1, 2, Q("6 mm")))
sketch6.setExpression("Constraints[9]", "Params.sketch6_width")
sketch6.setExpression("Constraints[10]", "Params.sketch6_height")
pad5 = doc.addObject("PartDesign::Pad", "Pad004")
body.addObject(pad5)
pad5.Profile = sketch6
pad5.setExpression("Length", "Params.pad5_length")
pad5.Reversed = True

# Sketch on XZ plane
sketch7 = doc.addObject("Sketcher::SketchObject", "Sketch006")
body.addObject(sketch7)
sketch7.AttachmentSupport = (doc.XZ_Plane, [""])
sketch7.MapMode = "FlatFace"
sketch7.addGeometry(Part.LineSegment(V(10, 1, 0), V(10, -4, 0)), False)
sketch7.addGeometry(Part.LineSegment(V(10, -4, 0), V(58.2, -4, 0)), False)
sketch7.addGeometry(Part.LineSegment(V(58.2, -4, 0), V(58.2, 1, 0)), False)
sketch7.addGeometry(Part.LineSegment(V(58.2, 1, 0), V(10, 1, 0)), False)
sketch7.addConstraint(Sketcher.Constraint("Coincident", 0, 2, 1, 1))
sketch7.addConstraint(Sketcher.Constraint("Coincident", 1, 2, 2, 1))
sketch7.addConstraint(Sketcher.Constraint("Coincident", 2, 2, 3, 1))
sketch7.addConstraint(Sketcher.Constraint("Coincident", 3, 2, 0, 1))
sketch7.addConstraint(Sketcher.Constraint("Vertical", 0))
sketch7.addConstraint(Sketcher.Constraint("Horizontal", 1))
sketch7.addConstraint(Sketcher.Constraint("Vertical", 2))
sketch7.addConstraint(Sketcher.Constraint("Horizontal", 3))
sketch7.addConstraint(Sketcher.Constraint("DistanceY", 0, 2, 0, 1, Q("5 mm")))
sketch7.addConstraint(Sketcher.Constraint("DistanceX", 1, 1, 1, 2, Q("48.2 mm")))
sketch7.addConstraint(Sketcher.Constraint("DistanceX", -1, 1, 0, 2, Q("10 mm")))
sketch7.addConstraint(Sketcher.Constraint("DistanceY", 0, 2, -1, 1, Q("4 mm")))
sketch7.setExpression("Constraints[8]", "Params.sketch7_height")
sketch7.setExpression("Constraints[9]", "Params.sketch7_width")
pad6 = doc.addObject("PartDesign::Pad", "Pad005")
body.addObject(pad6)
pad6.Profile = sketch7
pad6.setExpression("Length", "Params.pad6_length")

# Sketch on XY plane
sketch8 = doc.addObject("Sketcher::SketchObject", "Sketch007")
body.addObject(sketch8)
sketch8.AttachmentSupport = (doc.XY_Plane, [""])
sketch8.MapMode = "FlatFace"
sketch8.AttachmentOffset = App.Placement(V(0, 0, 1), App.Rotation())
sketch8.addGeometry(Part.LineSegment(V(10, 0, 0), V(10, -20, 0)), False)
sketch8.addGeometry(Part.LineSegment(V(10, -20, 0), V(30, -20, 0)), False)
sketch8.addGeometry(Part.ArcOfCircle(Part.Circle(V(32.05, 2.05, 0), V(0, 0, 1), 22.14509), math.radians(-174.68845), math.radians(-95.31155)), False)
sketch8.addGeometry(Part.Circle(V(24, -10, 0), V(0, 0, 1), 2.25), False)
sketch8.addGeometry(Part.Circle(V(44.2, -10, 0), V(0, 0, 1), 2.25), False)
sketch8.addGeometry(Part.LineSegment(V(58.2, -20, 0), V(58.2, 0, 0)), False)
sketch8.addGeometry(Part.ArcOfCircle(Part.Circle(V(36.15, 2.05, 0), V(0, 0, 1), 22.14509), math.radians(-84.68845), math.radians(-5.31155)), False)
sketch8.addGeometry(Part.LineSegment(V(38.2, -20, 0), V(58.2, -20, 0)), False)
sketch8.addConstraint(Sketcher.Constraint("Coincident", 0, 2, 1, 1))
sketch8.addConstraint(Sketcher.Constraint("Coincident", 1, 2, 2, 2))
sketch8.addConstraint(Sketcher.Constraint("Coincident", 2, 1, 0, 1))
sketch8.addConstraint(Sketcher.Constraint("Coincident", 5, 2, 6, 2))
sketch8.addConstraint(Sketcher.Constraint("Coincident", 6, 1, 7, 1))
sketch8.addConstraint(Sketcher.Constraint("Coincident", 7, 2, 5, 1))
sketch8.addConstraint(Sketcher.Constraint("Vertical", 0))
sketch8.addConstraint(Sketcher.Constraint("Horizontal", 1))
sketch8.addConstraint(Sketcher.Constraint("Vertical", 5))
sketch8.addConstraint(Sketcher.Constraint("Horizontal", 7))
sketch8.addConstraint(Sketcher.Constraint("Equal", 3, 4))
sketch8.addConstraint(Sketcher.Constraint("Equal", 2, 6))
sketch8.addConstraint(Sketcher.Constraint("PointOnObject", 2, 1, -1))
sketch8.addConstraint(Sketcher.Constraint("PointOnObject", 5, 2, -1))
sketch8.addConstraint(Sketcher.Constraint("Horizontal", 3, 3, 4, 3))
sketch8.addConstraint(Sketcher.Constraint("Horizontal", 2, 3, 6, 3))
sketch8.addConstraint(Sketcher.Constraint("Horizontal", 1, 2, 6, 1))
sketch8.addConstraint(Sketcher.Constraint("Equal", 7, 0))
sketch8.addConstraint(Sketcher.Constraint("Diameter", 3, Q("4.5 mm")))
sketch8.addConstraint(Sketcher.Constraint("DistanceX", 1, 1, 1, 2, Q("20 mm")))
sketch8.addConstraint(Sketcher.Constraint("DistanceX", -1, 1, 3, 3, Q("24 mm")))
sketch8.addConstraint(Sketcher.Constraint("DistanceY", 3, 3, -1, 1, Q("10 mm")))
sketch8.addConstraint(Sketcher.Constraint("DistanceX", -1, 1, 0, 2, Q("10 mm")))
sketch8.addConstraint(Sketcher.Constraint("DistanceX", 4, 3, 5, 2, Q("14 mm")))
sketch8.addConstraint(Sketcher.Constraint("DistanceX", -1, 1, 4, 3, Q("44.2 mm")))
sketch8.addConstraint(Sketcher.Constraint("DistanceX", 2, 3, 6, 3, Q("4.1 mm")))
sketch8.setExpression("Constraints[18]", "Params.sketch8_diameter")
sketch8.setExpression("Constraints[19]", "Params.sketch8_width")
pocket2 = doc.addObject("PartDesign::Pocket", "Pocket001")
body.addObject(pocket2)
pocket2.Profile = sketch8
pocket2.setExpression("Length", "Params.pocket2_length")

doc.recompute()
